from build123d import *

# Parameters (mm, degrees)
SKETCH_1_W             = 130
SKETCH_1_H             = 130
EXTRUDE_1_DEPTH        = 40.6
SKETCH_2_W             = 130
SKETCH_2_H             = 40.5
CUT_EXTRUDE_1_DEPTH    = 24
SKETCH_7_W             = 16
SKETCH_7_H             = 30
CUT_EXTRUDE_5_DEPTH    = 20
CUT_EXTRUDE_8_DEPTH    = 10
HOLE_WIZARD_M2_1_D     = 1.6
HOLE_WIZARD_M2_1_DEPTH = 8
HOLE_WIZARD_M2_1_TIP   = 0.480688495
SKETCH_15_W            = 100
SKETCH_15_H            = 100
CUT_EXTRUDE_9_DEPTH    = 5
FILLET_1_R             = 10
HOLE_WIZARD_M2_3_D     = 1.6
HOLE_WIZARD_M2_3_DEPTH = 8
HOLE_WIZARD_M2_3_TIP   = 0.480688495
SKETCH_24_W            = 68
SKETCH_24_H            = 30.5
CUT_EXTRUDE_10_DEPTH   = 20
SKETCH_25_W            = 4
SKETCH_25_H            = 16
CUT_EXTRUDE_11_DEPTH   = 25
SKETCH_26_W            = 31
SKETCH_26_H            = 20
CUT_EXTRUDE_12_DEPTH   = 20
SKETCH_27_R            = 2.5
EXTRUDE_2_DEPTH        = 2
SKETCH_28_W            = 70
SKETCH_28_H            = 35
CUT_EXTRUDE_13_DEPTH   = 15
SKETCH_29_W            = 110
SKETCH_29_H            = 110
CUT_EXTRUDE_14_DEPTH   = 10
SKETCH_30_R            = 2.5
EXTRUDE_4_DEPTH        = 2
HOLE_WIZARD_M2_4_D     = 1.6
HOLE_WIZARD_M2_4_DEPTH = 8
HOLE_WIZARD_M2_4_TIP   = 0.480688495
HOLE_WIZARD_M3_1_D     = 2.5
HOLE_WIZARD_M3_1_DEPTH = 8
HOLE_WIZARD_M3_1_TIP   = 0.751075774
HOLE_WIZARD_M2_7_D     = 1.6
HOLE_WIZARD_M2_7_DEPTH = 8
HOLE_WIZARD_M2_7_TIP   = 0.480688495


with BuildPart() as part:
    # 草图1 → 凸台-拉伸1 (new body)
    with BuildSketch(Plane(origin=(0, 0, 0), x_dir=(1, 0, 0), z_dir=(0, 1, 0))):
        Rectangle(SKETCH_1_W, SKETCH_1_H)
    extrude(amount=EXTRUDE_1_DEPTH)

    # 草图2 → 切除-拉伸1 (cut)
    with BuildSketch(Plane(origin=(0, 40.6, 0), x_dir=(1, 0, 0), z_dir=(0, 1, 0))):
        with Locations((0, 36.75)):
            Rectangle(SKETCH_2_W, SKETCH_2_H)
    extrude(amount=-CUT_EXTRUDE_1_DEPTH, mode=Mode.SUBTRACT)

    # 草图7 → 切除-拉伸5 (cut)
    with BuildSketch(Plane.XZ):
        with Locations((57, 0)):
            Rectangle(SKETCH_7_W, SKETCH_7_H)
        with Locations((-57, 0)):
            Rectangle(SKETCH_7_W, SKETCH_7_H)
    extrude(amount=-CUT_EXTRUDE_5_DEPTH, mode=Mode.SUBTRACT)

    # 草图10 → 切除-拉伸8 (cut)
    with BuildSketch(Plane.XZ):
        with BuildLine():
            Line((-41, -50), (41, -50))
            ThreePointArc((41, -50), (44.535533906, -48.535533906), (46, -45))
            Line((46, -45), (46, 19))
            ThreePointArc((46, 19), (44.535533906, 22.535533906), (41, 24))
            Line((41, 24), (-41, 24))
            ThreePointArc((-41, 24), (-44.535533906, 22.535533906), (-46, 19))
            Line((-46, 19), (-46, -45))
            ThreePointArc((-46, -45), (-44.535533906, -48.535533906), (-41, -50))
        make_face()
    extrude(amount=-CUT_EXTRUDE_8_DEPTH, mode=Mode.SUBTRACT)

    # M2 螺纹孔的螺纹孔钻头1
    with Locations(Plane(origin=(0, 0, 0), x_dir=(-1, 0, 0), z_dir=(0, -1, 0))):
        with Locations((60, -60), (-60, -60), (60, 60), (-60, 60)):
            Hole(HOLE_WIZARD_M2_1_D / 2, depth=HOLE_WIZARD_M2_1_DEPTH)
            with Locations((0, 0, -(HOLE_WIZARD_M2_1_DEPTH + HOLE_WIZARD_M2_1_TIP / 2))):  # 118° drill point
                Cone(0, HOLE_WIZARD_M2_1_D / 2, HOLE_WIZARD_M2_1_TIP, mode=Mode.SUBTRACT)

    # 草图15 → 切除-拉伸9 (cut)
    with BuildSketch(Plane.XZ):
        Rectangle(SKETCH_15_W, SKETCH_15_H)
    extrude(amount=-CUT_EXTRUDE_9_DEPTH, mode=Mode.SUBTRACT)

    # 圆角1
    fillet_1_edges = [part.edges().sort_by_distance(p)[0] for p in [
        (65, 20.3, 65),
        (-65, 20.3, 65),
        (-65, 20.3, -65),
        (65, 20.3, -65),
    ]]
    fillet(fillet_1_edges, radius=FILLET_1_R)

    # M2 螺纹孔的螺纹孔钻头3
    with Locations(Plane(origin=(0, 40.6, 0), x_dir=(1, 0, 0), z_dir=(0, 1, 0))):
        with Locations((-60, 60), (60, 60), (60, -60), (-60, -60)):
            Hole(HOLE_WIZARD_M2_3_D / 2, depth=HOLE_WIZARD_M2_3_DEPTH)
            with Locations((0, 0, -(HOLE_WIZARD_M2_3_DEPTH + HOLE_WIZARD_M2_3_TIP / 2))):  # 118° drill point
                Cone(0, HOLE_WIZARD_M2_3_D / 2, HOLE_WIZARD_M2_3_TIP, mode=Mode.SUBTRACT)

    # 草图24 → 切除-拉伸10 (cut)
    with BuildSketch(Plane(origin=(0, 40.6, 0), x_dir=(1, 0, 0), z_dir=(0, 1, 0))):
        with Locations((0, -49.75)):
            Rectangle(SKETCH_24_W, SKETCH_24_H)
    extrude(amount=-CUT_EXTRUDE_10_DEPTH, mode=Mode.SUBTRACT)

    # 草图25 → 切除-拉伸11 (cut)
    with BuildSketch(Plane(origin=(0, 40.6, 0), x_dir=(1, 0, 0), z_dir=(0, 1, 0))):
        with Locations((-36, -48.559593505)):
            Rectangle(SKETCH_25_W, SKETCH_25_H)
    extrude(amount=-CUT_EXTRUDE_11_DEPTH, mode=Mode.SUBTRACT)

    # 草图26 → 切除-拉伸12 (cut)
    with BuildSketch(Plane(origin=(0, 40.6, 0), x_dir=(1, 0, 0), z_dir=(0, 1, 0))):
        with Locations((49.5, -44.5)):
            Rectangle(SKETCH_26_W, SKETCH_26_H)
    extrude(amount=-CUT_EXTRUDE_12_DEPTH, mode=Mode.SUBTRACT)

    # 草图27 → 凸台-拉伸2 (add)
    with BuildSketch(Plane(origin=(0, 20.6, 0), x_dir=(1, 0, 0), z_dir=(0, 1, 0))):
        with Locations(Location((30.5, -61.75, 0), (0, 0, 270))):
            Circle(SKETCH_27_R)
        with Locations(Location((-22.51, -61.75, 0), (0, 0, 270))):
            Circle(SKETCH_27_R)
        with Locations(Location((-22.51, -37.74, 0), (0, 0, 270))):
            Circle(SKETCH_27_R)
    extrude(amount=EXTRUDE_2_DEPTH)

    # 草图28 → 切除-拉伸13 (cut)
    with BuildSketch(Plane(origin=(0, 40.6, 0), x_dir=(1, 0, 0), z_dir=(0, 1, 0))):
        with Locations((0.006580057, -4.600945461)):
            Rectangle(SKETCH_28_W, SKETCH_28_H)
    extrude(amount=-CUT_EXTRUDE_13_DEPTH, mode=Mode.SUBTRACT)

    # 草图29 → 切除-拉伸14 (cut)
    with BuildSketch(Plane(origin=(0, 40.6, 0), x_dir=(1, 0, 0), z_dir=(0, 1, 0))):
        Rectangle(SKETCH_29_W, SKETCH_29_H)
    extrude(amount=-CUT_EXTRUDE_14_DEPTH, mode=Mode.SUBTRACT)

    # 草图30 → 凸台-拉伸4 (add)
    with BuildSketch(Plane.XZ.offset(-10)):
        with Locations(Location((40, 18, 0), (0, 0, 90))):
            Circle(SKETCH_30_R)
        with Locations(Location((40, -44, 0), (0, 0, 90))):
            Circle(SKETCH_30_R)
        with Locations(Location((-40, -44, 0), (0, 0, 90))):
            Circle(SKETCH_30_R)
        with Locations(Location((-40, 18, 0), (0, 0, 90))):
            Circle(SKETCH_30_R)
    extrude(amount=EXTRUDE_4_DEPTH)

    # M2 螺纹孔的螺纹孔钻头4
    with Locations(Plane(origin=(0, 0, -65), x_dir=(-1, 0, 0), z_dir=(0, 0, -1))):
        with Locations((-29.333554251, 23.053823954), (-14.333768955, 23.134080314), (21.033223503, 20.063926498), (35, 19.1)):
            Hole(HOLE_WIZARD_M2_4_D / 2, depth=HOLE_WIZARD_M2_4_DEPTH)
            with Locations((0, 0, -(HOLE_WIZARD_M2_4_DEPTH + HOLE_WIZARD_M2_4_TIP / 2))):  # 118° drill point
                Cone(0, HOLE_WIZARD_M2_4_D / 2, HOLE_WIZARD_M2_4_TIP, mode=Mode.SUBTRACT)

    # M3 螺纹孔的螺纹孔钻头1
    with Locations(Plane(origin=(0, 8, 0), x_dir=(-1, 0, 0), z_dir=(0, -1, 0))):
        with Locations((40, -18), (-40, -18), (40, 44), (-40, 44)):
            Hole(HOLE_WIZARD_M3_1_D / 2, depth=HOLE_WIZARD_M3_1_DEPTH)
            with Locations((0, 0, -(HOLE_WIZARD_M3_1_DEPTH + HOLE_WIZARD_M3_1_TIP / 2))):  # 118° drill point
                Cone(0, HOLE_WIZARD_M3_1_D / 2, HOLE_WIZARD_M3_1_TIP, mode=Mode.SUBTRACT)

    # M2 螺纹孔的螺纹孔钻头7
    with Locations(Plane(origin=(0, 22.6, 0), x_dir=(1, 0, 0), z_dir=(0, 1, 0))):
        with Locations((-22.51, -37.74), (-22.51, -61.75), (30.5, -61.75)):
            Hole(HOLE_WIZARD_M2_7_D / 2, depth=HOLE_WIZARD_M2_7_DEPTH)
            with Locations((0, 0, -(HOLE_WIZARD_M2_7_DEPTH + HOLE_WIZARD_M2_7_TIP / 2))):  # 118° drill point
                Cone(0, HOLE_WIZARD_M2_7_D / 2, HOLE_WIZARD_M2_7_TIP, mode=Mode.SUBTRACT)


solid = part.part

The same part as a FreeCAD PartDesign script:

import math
import FreeCAD as App
import Part
import Sketcher


def edges_at(feature, points):
    """Names of the edges that pass closest to the given points."""
    edges = feature.Shape.Edges
    near = lambda p: min(range(len(edges)), key=lambda i: edges[i].distToShape(Part.Vertex(*p))[0])
    return sorted({f"Edge{near(p) + 1}" for p in points})

doc = App.newDocument("Part")
body = doc.addObject("PartDesign::Body", "Body")

# Sketch on XZ plane
sketch1 = doc.addObject("Sketcher::SketchObject", "Sketch")
body.addObject(sketch1)
sketch1.AttachmentSupport = (doc.XZ_Plane, [""])
sketch1.MapMode = "FlatFace"
sketch1.addGeometry([
    Part.LineSegment(App.Vector(-65, -65, 0), App.Vector(-65, 65, 0)),
    Part.LineSegment(App.Vector(-65, 65, 0), App.Vector(65, 65, 0)),
    Part.LineSegment(App.Vector(65, 65, 0), App.Vector(65, -65, 0)),
    Part.LineSegment(App.Vector(65, -65, 0), App.Vector(-65, -65, 0)),
], False)
sketch1.addConstraint([
    Sketcher.Constraint("Coincident", 0, 2, 1, 1),
    Sketcher.Constraint("Coincident", 1, 2, 2, 1),
    Sketcher.Constraint("Coincident", 2, 2, 3, 1),
    Sketcher.Constraint("Coincident", 3, 2, 0, 1),
    Sketcher.Constraint("Vertical", 0),
    Sketcher.Constraint("Horizontal", 1),
    Sketcher.Constraint("Vertical", 2),
    Sketcher.Constraint("Horizontal", 3),
    Sketcher.Constraint("Symmetric", 0, 2, 2, 2, -1, 1),
    Sketcher.Constraint("Equal", 3, 0),
    Sketcher.Constraint("DistanceX", 1, 1, 1, 2, 130.0),
])
pad1 = doc.addObject("PartDesign::Pad", "Pad")
body.addObject(pad1)
pad1.Profile = sketch1
pad1.Length = 40.6
pad1.Reversed = True

# Sketch on XZ plane
sketch2 = doc.addObject("Sketcher::SketchObject", "Sketch001")
body.addObject(sketch2)
sketch2.AttachmentSupport = (doc.XZ_Plane, [""])
sketch2.MapMode = "FlatFace"
sketch2.AttachmentOffset = App.Placement(App.Vector(0, 0, -40.6), App.Rotation())
sketch2.addGeometry([
    Part.LineSegment(App.Vector(-65, -57, 0), App.Vector(-65, -16.5, 0)),
    Part.LineSegment(App.Vector(-65, -16.5, 0), App.Vector(65, -16.5, 0)),
    Part.LineSegment(App.Vector(65, -16.5, 0), App.Vector(65, -57, 0)),
    Part.LineSegment(App.Vector(65, -57, 0), App.Vector(-65, -57, 0)),
], False)
sketch2.addConstraint([
    Sketcher.Constraint("Coincident", 0, 2, 1, 1),
    Sketcher.Constraint("Coincident", 1, 2, 2, 1),
    Sketcher.Constraint("Coincident", 2, 2, 3, 1),
    Sketcher.Constraint("Coincident", 3, 2, 0, 1),
    Sketcher.Constraint("Vertical", 0),
    Sketcher.Constraint("Horizontal", 1),
    Sketcher.Constraint("Vertical", 2),
    Sketcher.Constraint("Horizontal", 3),
    Sketcher.Constraint("DistanceX", 1, 1, 1, 2, 130.0),
    Sketcher.Constraint("DistanceY", 0, 1, 0, 2, 40.5),
    Sketcher.Constraint("DistanceX", 0, 2, -1, 1, 65.0),
    Sketcher.Constraint("DistanceY", 2, 2, -1, 1, 57.0),
])
pocket1 = doc.addObject("PartDesign::Pocket", "Pocket")
body.addObject(pocket1)
pocket1.Profile = sketch2
pocket1.Length = 24
pocket1.Reversed = True

# Sketch on XZ plane
sketch3 = doc.addObject("Sketcher::SketchObject", "Sketch002")
body.addObject(sketch3)
sketch3.AttachmentSupport = (doc.XZ_Plane, [""])
sketch3.MapMode = "FlatFace"
sketch3.addGeometry([
    Part.LineSegment(App.Vector(49, 15, 0), App.Vector(49, -15, 0)),  # 0
    Part.LineSegment(App.Vector(49, -15, 0), App.Vector(65, -15, 0)),  # 1
    Part.LineSegment(App.Vector(65, -15, 0), App.Vector(65, 15, 0)),  # 2
    Part.LineSegment(App.Vector(65, 15, 0), App.Vector(49, 15, 0)),  # 3
    Part.LineSegment(App.Vector(-65, 15, 0), App.Vector(-65, -15, 0)),  # 4
    Part.LineSegment(App.Vector(-65, -15, 0), App.Vector(-49, -15, 0)),  # 5
    Part.LineSegment(App.Vector(-49, -15, 0), App.Vector(-49, 15, 0)),  # 6
    Part.LineSegment(App.Vector(-49, 15, 0), App.Vector(-65, 15, 0)),  # 7
], False)
sketch3.addConstraint([
    Sketcher.Constraint("Coincident", 0, 2, 1, 1),
    Sketcher.Constraint("Coincident", 1, 2, 2, 1),
    Sketcher.Constraint("Coincident", 2, 2, 3, 1),
    Sketcher.Constraint("Coincident", 3, 2, 0, 1),
    Sketcher.Constraint("Coincident", 4, 2, 5, 1),
    Sketcher.Constraint("Coincident", 5, 2, 6, 1),
    Sketcher.Constraint("Coincident", 6, 2, 7, 1),
    Sketcher.Constraint("Coincident", 7, 2, 4, 1),
    Sketcher.Constraint("Vertical", 0),
    Sketcher.Constraint("Horizontal", 1),
    Sketcher.Constraint("Vertical", 2),
    Sketcher.Constraint("Horizontal", 3),
    Sketcher.Constraint("Vertical", 4),
    Sketcher.Constraint("Horizontal", 5),
    Sketcher.Constraint("Vertical", 6),
    Sketcher.Constraint("Horizontal", 7),
    Sketcher.Constraint("Symmetric", 2, 2, 4, 2, -1, 1),
    Sketcher.Constraint("Symmetric", 0, 2, 6, 2, -1, 1),
    Sketcher.Constraint("Horizontal", 1, 2, 4, 2),
    Sketcher.Constraint("DistanceX", 1, 1, 1, 2, 16.0),
    Sketcher.Constraint("DistanceY", 0, 2, 0, 1, 30.0),
    Sketcher.Constraint("DistanceX", -1, 1, 0, 2, 49.0),
])
pocket2 = doc.addObject("PartDesign::Pocket", "Pocket001")
body.addObject(pocket2)
pocket2.Profile = sketch3
pocket2.Length = 20

# Sketch on XZ plane
sketch4 = doc.addObject("Sketcher::SketchObject", "Sketch003")
body.addObject(sketch4)
sketch4.AttachmentSupport = (doc.XZ_Plane, [""])
sketch4.MapMode = "FlatFace"
sketch4.addGeometry([
    Part.LineSegment(App.Vector(-41, -50, 0), App.Vector(41, -50, 0)),  # 0
    Part.ArcOfCircle(Part.Circle(App.Vector(41, -45, 0), App.Vector(0, 0, 1), 5), math.radians(-90), math.radians(0)),  # 1
    Part.LineSegment(App.Vector(46, -45, 0), App.Vector(46, 19, 0)),  # 2
    Part.ArcOfCircle(Part.Circle(App.Vector(41, 19, 0), App.Vector(0, 0, 1), 5), math.radians(0), math.radians(90)),  # 3
    Part.LineSegment(App.Vector(41, 24, 0), App.Vector(-41, 24, 0)),  # 4
    Part.ArcOfCircle(Part.Circle(App.Vector(-41, 19, 0), App.Vector(0, 0, 1), 5), math.radians(90), math.radians(180)),  # 5
    Part.LineSegment(App.Vector(-46, 19, 0), App.Vector(-46, -45, 0)),  # 6
    Part.ArcOfCircle(Part.Circle(App.Vector(-41, -45, 0), App.Vector(0, 0, 1), 5), math.radians(180), math.radians(270)),  # 7
], False)
sketch4.addConstraint([
    Sketcher.Constraint("Tangent", 0, 2, 1, 1),
    Sketcher.Constraint("Tangent", 1, 2, 2, 1),
    Sketcher.Constraint("Tangent", 2, 2, 3, 1),
    Sketcher.Constraint("Tangent", 3, 2, 4, 1),
    Sketcher.Constraint("Tangent", 4, 2, 5, 1),
    Sketcher.Constraint("Tangent", 5, 2, 6, 1),
    Sketcher.Constraint("Tangent", 6, 2, 7, 1),
    Sketcher.Constraint("Tangent", 7, 2, 0, 1),
    Sketcher.Constraint("Horizontal", 0),
    Sketcher.Constraint("Vertical", 2),
    Sketcher.Constraint("Horizontal", 4),
    Sketcher.Constraint("Vertical", 6),
    Sketcher.Constraint("Equal", 1, 3),
    Sketcher.Constraint("Equal", 3, 5),
    Sketcher.Constraint("Equal", 5, 7),
    Sketcher.Constraint("Radius", 1, 5.0),
    Sketcher.Constraint("DistanceX", 0, 1, 0, 2, 82.0),
    Sketcher.Constraint("DistanceY", 2, 1, 2, 2, 64.0),
    Sketcher.Constraint("DistanceX", -1, 1, 1, 3, 41.0),
    Sketcher.Constraint("DistanceY", 1, 3, -1, 1, 45.0),
])
pocket3 = doc.addObject("PartDesign::Pocket", "Pocket002")
body.addObject(pocket3)
pocket3.Profile = sketch4
pocket3.Length = 10

# Sketch on XZ plane
sketch5 = doc.addObject("Sketcher::SketchObject", "Sketch004")
body.addObject(sketch5)
sketch5.AttachmentSupport = (doc.XZ_Plane, [""])
sketch5.MapMode = "FlatFace"
sketch5.addGeometry([
    Part.Circle(App.Vector(-60, 60, 0), App.Vector(0, 0, 1), 0.8),
    Part.Circle(App.Vector(60, 60, 0), App.Vector(0, 0, 1), 0.8),
    Part.Circle(App.Vector(-60, -60, 0), App.Vector(0, 0, 1), 0.8),
    Part.Circle(App.Vector(60, -60, 0), App.Vector(0, 0, 1), 0.8),
], False)
sketch5.addConstraint([
    Sketcher.Constraint("Equal", 0, 1),
    Sketcher.Constraint("Equal", 1, 2),
    Sketcher.Constraint("Equal", 2, 3),
    Sketcher.Constraint("Symmetric", 1, 3, 2, 3, -1, 1),
    Sketcher.Constraint("Symmetric", 0, 3, 3, 3, -1, 1),
    Sketcher.Constraint("Symmetric", 0, 3, 1, 3, -2),
    Sketcher.Constraint("Diameter", 0, 1.6),
    Sketcher.Constraint("DistanceX", 0, 3, -1, 1, 60.0),
    Sketcher.Constraint("DistanceY", -1, 1, 0, 3, 60.0),
])
doc.recompute()
hole = doc.addObject("PartDesign::Hole", "Hole")
body.addObject(hole)
hole.Profile = sketch5
hole.ThreadType = "None"
hole.Diameter = 1.6
hole.DepthType = "Dimension"
hole.Depth = 8
hole.DrillPoint = "Angled"
hole.DrillPointAngle = 118

# Sketch on XZ plane
sketch6 = doc.addObject("Sketcher::SketchObject", "Sketch005")
body.addObject(sketch6)
sketch6.AttachmentSupport = (doc.XZ_Plane, [""])
sketch6.MapMode = "FlatFace"
sketch6.addGeometry([
    Part.LineSegment(App.Vector(-50, 50, 0), App.Vector(-50, -50, 0)),
    Part.LineSegment(App.Vector(-50, -50, 0), App.Vector(50, -50, 0)),
    Part.LineSegment(App.Vector(50, -50, 0), App.Vector(50, 50, 0)),
    Part.LineSegment(App.Vector(50, 50, 0), App.Vector(-50, 50, 0)),
], False)
sketch6.addConstraint([
    Sketcher.Constraint("Coincident", 0, 2, 1, 1),
    Sketcher.Constraint("Coincident", 1, 2, 2, 1),
    Sketcher.Constraint("Coincident", 2, 2, 3, 1),
    Sketcher.Constraint("Coincident", 3, 2, 0, 1),
    Sketcher.Constraint("Vertical", 0),
    Sketcher.Constraint("Horizontal", 1),
    Sketcher.Constraint("Vertical", 2),
    Sketcher.Constraint("Horizontal", 3),
    Sketcher.Constraint("Symmetric", 0, 2, 2, 2, -1, 1),
    Sketcher.Constraint("Equal", 3, 0),
    Sketcher.Constraint("DistanceX", 1, 1, 1, 2, 100.0),
])
pocket4 = doc.addObject("PartDesign::Pocket", "Pocket003")
body.addObject(pocket4)
pocket4.Profile = sketch6
pocket4.Length = 5
doc.recompute()

fillet = doc.addObject("PartDesign::Fillet", "Fillet")
body.addObject(fillet)
fillet.Base = (pocket4, edges_at(pocket4, [
    (65, 20.3, 65),
    (-65, 20.3, 65),
    (-65, 20.3, -65),
    (65, 20.3, -65),
]))
fillet.Radius = 10

# Sketch on XZ plane
sketch7 = doc.addObject("Sketcher::SketchObject", "Sketch006")
body.addObject(sketch7)
sketch7.AttachmentSupport = (doc.XZ_Plane, [""])
sketch7.MapMode = "FlatFace"
sketch7.AttachmentOffset = App.Placement(App.Vector(0, 0, -40.6), App.Rotation())
sketch7.addGeometry([
    Part.Circle(App.Vector(-60, -60, 0), App.Vector(0, 0, 1), 0.8),
    Part.Circle(App.Vector(60, -60, 0), App.Vector(0, 0, 1), 0.8),
    Part.Circle(App.Vector(60, 60, 0), App.Vector(0, 0, 1), 0.8),
    Part.Circle(App.Vector(-60, 60, 0), App.Vector(0, 0, 1), 0.8),
], False)
sketch7.addConstraint([
    Sketcher.Constraint("Equal", 0, 1),
    Sketcher.Constraint("Equal", 1, 2),
    Sketcher.Constraint("Equal", 2, 3),
    Sketcher.Constraint("Symmetric", 0, 3, 2, 3, -1, 1),
    Sketcher.Constraint("Symmetric", 1, 3, 3, 3, -1, 1),
    Sketcher.Constraint("Symmetric", 0, 3, 1, 3, -2),
    Sketcher.Constraint("Diameter", 0, 1.6),
    Sketcher.Constraint("DistanceX", 0, 3, -1, 1, 60.0),
    Sketcher.Constraint("DistanceY", 0, 3, -1, 1, 60.0),
])
doc.recompute()
hole2 = doc.addObject("PartDesign::Hole", "Hole001")
body.addObject(hole2)
hole2.Profile = sketch7
hole2.ThreadType = "None"
hole2.Diameter = 1.6
hole2.DepthType = "Dimension"
hole2.Depth = 8
hole2.DrillPoint = "Angled"
hole2.DrillPointAngle = 118
hole2.Reversed = True

# Sketch on XZ plane
sketch8 = doc.addObject("Sketcher::SketchObject", "Sketch007")
body.addObject(sketch8)
sketch8.AttachmentSupport = (doc.XZ_Plane, [""])
sketch8.MapMode = "FlatFace"
sketch8.AttachmentOffset = App.Placement(App.Vector(0, 0, -40.6), App.Rotation())
sketch8.addGeometry([
    Part.LineSegment(App.Vector(-34, 34.5, 0), App.Vector(-34, 65, 0)),
    Part.LineSegment(App.Vector(-34, 65, 0), App.Vector(34, 65, 0)),
    Part.LineSegment(App.Vector(34, 65, 0), App.Vector(34, 34.5, 0)),
    Part.LineSegment(App.Vector(34, 34.5, 0), App.Vector(-34, 34.5, 0)),
], False)
sketch8.addConstraint([
    Sketcher.Constraint("Coincident", 0, 2, 1, 1),
    Sketcher.Constraint("Coincident", 1, 2, 2, 1),
    Sketcher.Constraint("Coincident", 2, 2, 3, 1),
    Sketcher.Constraint("Coincident", 3, 2, 0, 1),
    Sketcher.Constraint("Vertical", 0),
    Sketcher.Constraint("Horizontal", 1),
    Sketcher.Constraint("Vertical", 2),
    Sketcher.Constraint("Horizontal", 3),
    Sketcher.Constraint("DistanceX", 1, 1, 1, 2, 68.0),
    Sketcher.Constraint("DistanceY", 0, 1, 0, 2, 30.5),
    Sketcher.Constraint("DistanceX", 0, 2, -1, 1, 34.0),
    Sketcher.Constraint("DistanceY", -1, 1, 0, 2, 65.0),
])
pocket5 = doc.addObject("PartDesign::Pocket", "Pocket004")
body.addObject(pocket5)
pocket5.Profile = sketch8
pocket5.Length = 20
pocket5.Reversed = True

# Sketch on XZ plane
sketch9 = doc.addObject("Sketcher::SketchObject", "Sketch008")
body.addObject(sketch9)
sketch9.AttachmentSupport = (doc.XZ_Plane, [""])
sketch9.MapMode = "FlatFace"
sketch9.AttachmentOffset = App.Placement(App.Vector(0, 0, -40.6), App.Rotation())
sketch9.addGeometry([
    Part.LineSegment(App.Vector(-38, 40.559594, 0), App.Vector(-38, 56.559594, 0)),
    Part.LineSegment(App.Vector(-38, 56.559594, 0), App.Vector(-34, 56.559594, 0)),
    Part.LineSegment(App.Vector(-34, 56.559594, 0), App.Vector(-34, 40.559594, 0)),
    Part.LineSegment(App.Vector(-34, 40.559594, 0), App.Vector(-38, 40.559594, 0)),
], False)
sketch9.addConstraint([
    Sketcher.Constraint("Coincident", 0, 2, 1, 1),
    Sketcher.Constraint("Coincident", 1, 2, 2, 1),
    Sketcher.Constraint("Coincident", 2, 2, 3, 1),
    Sketcher.Constraint("Coincident", 3, 2, 0, 1),
    Sketcher.Constraint("Vertical", 0),
    Sketcher.Constraint("Horizontal", 1),
    Sketcher.Constraint("Vertical", 2),
    Sketcher.Constraint("Horizontal", 3),
    Sketcher.Constraint("DistanceX", 1, 1, 1, 2, 4.0),
    Sketcher.Constraint("DistanceY", 0, 1, 0, 2, 16.0),
    Sketcher.Constraint("DistanceX", 0, 2, -1, 1, 38.0),
    Sketcher.Constraint("DistanceY", -1, 1, 0, 2, 56.559594),
])
pocket6 = doc.addObject("PartDesign::Pocket", "Pocket005")
body.addObject(pocket6)
pocket6.Profile = sketch9
pocket6.Length = 25
pocket6.Reversed = True

# Sketch on XZ plane
sketch10 = doc.addObject("Sketcher::SketchObject", "Sketch009")
body.addObject(sketch10)
sketch10.AttachmentSupport = (doc.XZ_Plane, [""])
sketch10.MapMode = "FlatFace"
sketch10.AttachmentOffset = App.Placement(App.Vector(0, 0, -40.6), App.Rotation())
sketch10.addGeometry([
    Part.LineSegment(App.Vector(34, 34.5, 0), App.Vector(34, 54.5, 0)),
    Part.LineSegment(App.Vector(34, 54.5, 0), App.Vector(65, 54.5, 0)),
    Part.LineSegment(App.Vector(65, 54.5, 0), App.Vector(65, 34.5, 0)),
    Part.LineSegment(App.Vector(65, 34.5, 0), App.Vector(34, 34.5, 0)),
], False)
sketch10.addConstraint([
    Sketcher.Constraint("Coincident", 0, 2, 1, 1),
    Sketcher.Constraint("Coincident", 1, 2, 2, 1),
    Sketcher.Constraint("Coincident", 2, 2, 3, 1),
    Sketcher.Constraint("Coincident", 3, 2, 0, 1),
    Sketcher.Constraint("Vertical", 0),
    Sketcher.Constraint("Horizontal", 1),
    Sketcher.Constraint("Vertical", 2),
    Sketcher.Constraint("Horizontal", 3),
    Sketcher.Constraint("DistanceX", 1, 1, 1, 2, 31.0),
    Sketcher.Constraint("DistanceY", 0, 1, 0, 2, 20.0),
    Sketcher.Constraint("DistanceX", -1, 1, 0, 2, 34.0),
    Sketcher.Constraint("DistanceY", -1, 1, 0, 2, 54.5),
])
pocket7 = doc.addObject("PartDesign::Pocket", "Pocket006")
body.addObject(pocket7)
pocket7.Profile = sketch10
pocket7.Length = 20
pocket7.Reversed = True

# Sketch on XZ plane
sketch11 = doc.addObject("Sketcher::SketchObject", "Sketch010")
body.addObject(sketch11)
sketch11.AttachmentSupport = (doc.XZ_Plane, [""])
sketch11.MapMode = "FlatFace"
sketch11.AttachmentOffset = App.Placement(App.Vector(0, 0, -20.6), App.Rotation())
sketch11.addGeometry([
    Part.Circle(App.Vector(30.5, 61.75, 0), App.Vector(0, 0, 1), 2.5),
    Part.Circle(App.Vector(-22.51, 61.75, 0), App.Vector(0, 0, 1), 2.5),
    Part.Circle(App.Vector(-22.51, 37.74, 0), App.Vector(0, 0, 1), 2.5),
], False)
sketch11.addConstraint([
    Sketcher.Constraint("Equal", 0, 1),
    Sketcher.Constraint("Equal", 1, 2),
    Sketcher.Constraint("Horizontal", 0, 3, 1, 3),
    Sketcher.Constraint("Vertical", 1, 3, 2, 3),
    Sketcher.Constraint("Diameter", 0, 5.0),
    Sketcher.Constraint("DistanceX", -1, 1, 0, 3, 30.5),
    Sketcher.Constraint("DistanceY", -1, 1, 0, 3, 61.75),
    Sketcher.Constraint("DistanceX", 1, 3, -1, 1, 22.51),
    Sketcher.Constraint("DistanceY", -1, 1, 2, 3, 37.74),
])
pad2 = doc.addObject("PartDesign::Pad", "Pad001")
body.addObject(pad2)
pad2.Profile = sketch11
pad2.Length = 2
pad2.Reversed = True

# Sketch on XZ plane
sketch12 = doc.addObject("Sketcher::SketchObject", "Sketch011")
body.addObject(sketch12)
sketch12.AttachmentSupport = (doc.XZ_Plane, [""])
sketch12.MapMode = "FlatFace"
sketch12.AttachmentOffset = App.Placement(App.Vector(0, 0, -40.6), App.Rotation())
sketch12.addGeometry([
    Part.LineSegment(App.Vector(-34.99342, -12.899055, 0), App.Vector(-34.99342, 22.100945, 0)),
    Part.LineSegment(App.Vector(-34.99342, 22.100945, 0), App.Vector(35.00658, 22.100945, 0)),
    Part.LineSegment(App.Vector(35.00658, 22.100945, 0), App.Vector(35.00658, -12.899055, 0)),
    Part.LineSegment(App.Vector(35.00658, -12.899055, 0), App.Vector(-34.99342, -12.899055, 0)),
], False)
sketch12.addConstraint([
    Sketcher.Constraint("Coincident", 0, 2, 1, 1),
    Sketcher.Constraint("Coincident", 1, 2, 2, 1),
    Sketcher.Constraint("Coincident", 2, 2, 3, 1),
    Sketcher.Constraint("Coincident", 3, 2, 0, 1),
    Sketcher.Constraint("Vertical", 0),
    Sketcher.Constraint("Horizontal", 1),
    Sketcher.Constraint("Vertical", 2),
    Sketcher.Constraint("Horizontal", 3),
    Sketcher.Constraint("DistanceX", 1, 1, 1, 2, 70.0),
    Sketcher.Constraint("DistanceY", 0, 1, 0, 2, 35.0),
    Sketcher.Constraint("DistanceX", 0, 2, -1, 1, 34.99342),
    Sketcher.Constraint("DistanceY", -1, 1, 0, 2, 22.100945),
])
pocket8 = doc.addObject("PartDesign::Pocket", "Pocket007")
body.addObject(pocket8)
pocket8.Profile = sketch12
pocket8.Length = 15
pocket8.Reversed = True

# Sketch on XZ plane
sketch13 = doc.addObject("Sketcher::SketchObject", "Sketch012")
body.addObject(sketch13)
sketch13.AttachmentSupport = (doc.XZ_Plane, [""])
sketch13.MapMode = "FlatFace"
sketch13.AttachmentOffset = App.Placement(App.Vector(0, 0, -40.6), App.Rotation())
sketch13.addGeometry([
    Part.LineSegment(App.Vector(-55, -55, 0), App.Vector(-55, 55, 0)),
    Part.LineSegment(App.Vector(-55, 55, 0), App.Vector(55, 55, 0)),
    Part.LineSegment(App.Vector(55, 55, 0), App.Vector(55, -55, 0)),
    Part.LineSegment(App.Vector(55, -55, 0), App.Vector(-55, -55, 0)),
], False)
sketch13.addConstraint([
    Sketcher.Constraint("Coincident", 0, 2, 1, 1),
    Sketcher.Constraint("Coincident", 1, 2, 2, 1),
    Sketcher.Constraint("Coincident", 2, 2, 3, 1),
    Sketcher.Constraint("Coincident", 3, 2, 0, 1),
    Sketcher.Constraint("Vertical", 0),
    Sketcher.Constraint("Horizontal", 1),
    Sketcher.Constraint("Vertical", 2),
    Sketcher.Constraint("Horizontal", 3),
    Sketcher.Constraint("Symmetric", 0, 2, 2, 2, -1, 1),
    Sketcher.Constraint("Equal", 3, 0),
    Sketcher.Constraint("DistanceX", 1, 1, 1, 2, 110.0),
])
pocket9 = doc.addObject("PartDesign::Pocket", "Pocket008")
body.addObject(pocket9)
pocket9.Profile = sketch13
pocket9.Length = 10
pocket9.Reversed = True

# Sketch on XZ plane
sketch14 = doc.addObject("Sketcher::SketchObject", "Sketch013")
body.addObject(sketch14)
sketch14.AttachmentSupport = (doc.XZ_Plane, [""])
sketch14.MapMode = "FlatFace"
sketch14.AttachmentOffset = App.Placement(App.Vector(0, 0, -10), App.Rotation())
sketch14.addGeometry([
    Part.Circle(App.Vector(40, 18, 0), App.Vector(0, 0, 1), 2.5),
    Part.Circle(App.Vector(40, -44, 0), App.Vector(0, 0, 1), 2.5),
    Part.Circle(App.Vector(-40, -44, 0), App.Vector(0, 0, 1), 2.5),
    Part.Circle(App.Vector(-40, 18, 0), App.Vector(0, 0, 1), 2.5),
], False)
sketch14.addConstraint([
    Sketcher.Constraint("Equal", 0, 1),
    Sketcher.Constraint("Equal", 1, 2),
    Sketcher.Constraint("Equal", 2, 3),
    Sketcher.Constraint("Symmetric", 1, 3, 2, 3, -2),
    Sketcher.Constraint("Symmetric", 0, 3, 3, 3, -2),
    Sketcher.Constraint("Vertical", 0, 3, 1, 3),
    Sketcher.Constraint("Diameter", 0, 5.0),
    Sketcher.Constraint("DistanceX", -1, 1, 0, 3, 40.0),
    Sketcher.Constraint("DistanceY", -1, 1, 0, 3, 18.0),
    Sketcher.Constraint("DistanceY", 1, 3, -1, 1, 44.0),
])
pad3 = doc.addObject("PartDesign::Pad", "Pad002")
body.addObject(pad3)
pad3.Profile = sketch14
pad3.Length = 2

# Sketch on XY plane
sketch15 = doc.addObject("Sketcher::SketchObject", "Sketch014")
body.addObject(sketch15)
sketch15.AttachmentSupport = (doc.XY_Plane, [""])
sketch15.MapMode = "FlatFace"
sketch15.AttachmentOffset = App.Placement(App.Vector(0, 0, -65), App.Rotation())
sketch15.addGeometry([
    Part.Circle(App.Vector(29.333554, 23.053824, 0), App.Vector(0, 0, 1), 0.8),
    Part.Circle(App.Vector(14.333769, 23.13408, 0), App.Vector(0, 0, 1), 0.8),
    Part.Circle(App.Vector(-21.033224, 20.063926, 0), App.Vector(0, 0, 1), 0.8),
    Part.Circle(App.Vector(-35, 19.1, 0), App.Vector(0, 0, 1), 0.8),
], False)
sketch15.addConstraint([
    Sketcher.Constraint("Equal", 0, 1),
    Sketcher.Constraint("Equal", 1, 2),
    Sketcher.Constraint("Equal", 2, 3),
    Sketcher.Constraint("Diameter", 0, 1.6),
    Sketcher.Constraint("DistanceX", 3, 3, -1, 1, 35.0),
    Sketcher.Constraint("DistanceY", -1, 1, 3, 3, 19.1),
    Sketcher.Constraint("DistanceX", -1, 1, 1, 3, 14.333769),
    Sketcher.Constraint("DistanceY", -1, 1, 1, 3, 23.13408),
    Sketcher.Constraint("DistanceX", -1, 1, 0, 3, 29.333554),
    Sketcher.Constraint("DistanceY", -1, 1, 0, 3, 23.053824),
    Sketcher.Constraint("DistanceX", 2, 3, -1, 1, 21.033224),
    Sketcher.Constraint("DistanceY", -1, 1, 2, 3, 20.063926),
])
doc.recompute()
hole3 = doc.addObject("PartDesign::Hole", "Hole002")
body.addObject(hole3)
hole3.Profile = sketch15
hole3.ThreadType = "None"
hole3.Diameter = 1.6
hole3.DepthType = "Dimension"
hole3.Depth = 8
hole3.DrillPoint = "Angled"
hole3.DrillPointAngle = 118
hole3.Reversed = True

# Sketch on XZ plane
sketch16 = doc.addObject("Sketcher::SketchObject", "Sketch015")
body.addObject(sketch16)
sketch16.AttachmentSupport = (doc.XZ_Plane, [""])
sketch16.MapMode = "FlatFace"
sketch16.AttachmentOffset = App.Placement(App.Vector(0, 0, -8), App.Rotation())
sketch16.addGeometry([
    Part.Circle(App.Vector(-40, 18, 0), App.Vector(0, 0, 1), 1.25),
    Part.Circle(App.Vector(40, 18, 0), App.Vector(0, 0, 1), 1.25),
    Part.Circle(App.Vector(-40, -44, 0), App.Vector(0, 0, 1), 1.25),
    Part.Circle(App.Vector(40, -44, 0), App.Vector(0, 0, 1), 1.25),
], False)
sketch16.addConstraint([
    Sketcher.Constraint("Equal", 0, 1),
    Sketcher.Constraint("Equal", 1, 2),
    Sketcher.Constraint("Equal", 2, 3),
    Sketcher.Constraint("Symmetric", 0, 3, 1, 3, -2),
    Sketcher.Constraint("Symmetric", 2, 3, 3, 3, -2),
    Sketcher.Constraint("Vertical", 0, 3, 2, 3),
    Sketcher.Constraint("Diameter", 0, 2.5),
    Sketcher.Constraint("DistanceX", 0, 3, -1, 1, 40.0),
    Sketcher.Constraint("DistanceY", -1, 1, 0, 3, 18.0),
    Sketcher.Constraint("DistanceY", 2, 3, -1, 1, 44.0),
])
doc.recompute()
hole4 = doc.addObject("PartDesign::Hole", "Hole003")
body.addObject(hole4)
hole4.Profile = sketch16
hole4.ThreadType = "None"
hole4.Diameter = 2.5
hole4.DepthType = "Dimension"
hole4.Depth = 8
hole4.DrillPoint = "Angled"
hole4.DrillPointAngle = 118

# Sketch on XZ plane
sketch17 = doc.addObject("Sketcher::SketchObject", "Sketch016")
body.addObject(sketch17)
sketch17.AttachmentSupport = (doc.XZ_Plane, [""])
sketch17.MapMode = "FlatFace"
sketch17.AttachmentOffset = App.Placement(App.Vector(0, 0, -22.6), App.Rotation())
sketch17.addGeometry([
    Part.Circle(App.Vector(-22.51, 37.74, 0), App.Vector(0, 0, 1), 0.8),
    Part.Circle(App.Vector(-22.51, 61.75, 0), App.Vector(0, 0, 1), 0.8),
    Part.Circle(App.Vector(30.5, 61.75, 0), App.Vector(0, 0, 1), 0.8),
], False)
sketch17.addConstraint([
    Sketcher.Constraint("Equal", 0, 1),
    Sketcher.Constraint("Equal", 1, 2),
    Sketcher.Constraint("Horizontal", 1, 3, 2, 3),
    Sketcher.Constraint("Vertical", 0, 3, 1, 3),
    Sketcher.Constraint("Diameter", 0, 1.6),
    Sketcher.Constraint("DistanceX", -1, 1, 2, 3, 30.5),
    Sketcher.Constraint("DistanceX", 0, 3, -1, 1, 22.51),
    Sketcher.Constraint("DistanceY", -1, 1, 0, 3, 37.74),
    Sketcher.Constraint("DistanceY", -1, 1, 1, 3, 61.75),
])
doc.recompute()
hole5 = doc.addObject("PartDesign::Hole", "Hole004")
body.addObject(hole5)
hole5.Profile = sketch17
hole5.ThreadType = "None"
hole5.Diameter = 1.6
hole5.DepthType = "Dimension"
hole5.Depth = 8
hole5.DrillPoint = "Angled"
hole5.DrillPointAngle = 118
hole5.Reversed = True

doc.recompute()
